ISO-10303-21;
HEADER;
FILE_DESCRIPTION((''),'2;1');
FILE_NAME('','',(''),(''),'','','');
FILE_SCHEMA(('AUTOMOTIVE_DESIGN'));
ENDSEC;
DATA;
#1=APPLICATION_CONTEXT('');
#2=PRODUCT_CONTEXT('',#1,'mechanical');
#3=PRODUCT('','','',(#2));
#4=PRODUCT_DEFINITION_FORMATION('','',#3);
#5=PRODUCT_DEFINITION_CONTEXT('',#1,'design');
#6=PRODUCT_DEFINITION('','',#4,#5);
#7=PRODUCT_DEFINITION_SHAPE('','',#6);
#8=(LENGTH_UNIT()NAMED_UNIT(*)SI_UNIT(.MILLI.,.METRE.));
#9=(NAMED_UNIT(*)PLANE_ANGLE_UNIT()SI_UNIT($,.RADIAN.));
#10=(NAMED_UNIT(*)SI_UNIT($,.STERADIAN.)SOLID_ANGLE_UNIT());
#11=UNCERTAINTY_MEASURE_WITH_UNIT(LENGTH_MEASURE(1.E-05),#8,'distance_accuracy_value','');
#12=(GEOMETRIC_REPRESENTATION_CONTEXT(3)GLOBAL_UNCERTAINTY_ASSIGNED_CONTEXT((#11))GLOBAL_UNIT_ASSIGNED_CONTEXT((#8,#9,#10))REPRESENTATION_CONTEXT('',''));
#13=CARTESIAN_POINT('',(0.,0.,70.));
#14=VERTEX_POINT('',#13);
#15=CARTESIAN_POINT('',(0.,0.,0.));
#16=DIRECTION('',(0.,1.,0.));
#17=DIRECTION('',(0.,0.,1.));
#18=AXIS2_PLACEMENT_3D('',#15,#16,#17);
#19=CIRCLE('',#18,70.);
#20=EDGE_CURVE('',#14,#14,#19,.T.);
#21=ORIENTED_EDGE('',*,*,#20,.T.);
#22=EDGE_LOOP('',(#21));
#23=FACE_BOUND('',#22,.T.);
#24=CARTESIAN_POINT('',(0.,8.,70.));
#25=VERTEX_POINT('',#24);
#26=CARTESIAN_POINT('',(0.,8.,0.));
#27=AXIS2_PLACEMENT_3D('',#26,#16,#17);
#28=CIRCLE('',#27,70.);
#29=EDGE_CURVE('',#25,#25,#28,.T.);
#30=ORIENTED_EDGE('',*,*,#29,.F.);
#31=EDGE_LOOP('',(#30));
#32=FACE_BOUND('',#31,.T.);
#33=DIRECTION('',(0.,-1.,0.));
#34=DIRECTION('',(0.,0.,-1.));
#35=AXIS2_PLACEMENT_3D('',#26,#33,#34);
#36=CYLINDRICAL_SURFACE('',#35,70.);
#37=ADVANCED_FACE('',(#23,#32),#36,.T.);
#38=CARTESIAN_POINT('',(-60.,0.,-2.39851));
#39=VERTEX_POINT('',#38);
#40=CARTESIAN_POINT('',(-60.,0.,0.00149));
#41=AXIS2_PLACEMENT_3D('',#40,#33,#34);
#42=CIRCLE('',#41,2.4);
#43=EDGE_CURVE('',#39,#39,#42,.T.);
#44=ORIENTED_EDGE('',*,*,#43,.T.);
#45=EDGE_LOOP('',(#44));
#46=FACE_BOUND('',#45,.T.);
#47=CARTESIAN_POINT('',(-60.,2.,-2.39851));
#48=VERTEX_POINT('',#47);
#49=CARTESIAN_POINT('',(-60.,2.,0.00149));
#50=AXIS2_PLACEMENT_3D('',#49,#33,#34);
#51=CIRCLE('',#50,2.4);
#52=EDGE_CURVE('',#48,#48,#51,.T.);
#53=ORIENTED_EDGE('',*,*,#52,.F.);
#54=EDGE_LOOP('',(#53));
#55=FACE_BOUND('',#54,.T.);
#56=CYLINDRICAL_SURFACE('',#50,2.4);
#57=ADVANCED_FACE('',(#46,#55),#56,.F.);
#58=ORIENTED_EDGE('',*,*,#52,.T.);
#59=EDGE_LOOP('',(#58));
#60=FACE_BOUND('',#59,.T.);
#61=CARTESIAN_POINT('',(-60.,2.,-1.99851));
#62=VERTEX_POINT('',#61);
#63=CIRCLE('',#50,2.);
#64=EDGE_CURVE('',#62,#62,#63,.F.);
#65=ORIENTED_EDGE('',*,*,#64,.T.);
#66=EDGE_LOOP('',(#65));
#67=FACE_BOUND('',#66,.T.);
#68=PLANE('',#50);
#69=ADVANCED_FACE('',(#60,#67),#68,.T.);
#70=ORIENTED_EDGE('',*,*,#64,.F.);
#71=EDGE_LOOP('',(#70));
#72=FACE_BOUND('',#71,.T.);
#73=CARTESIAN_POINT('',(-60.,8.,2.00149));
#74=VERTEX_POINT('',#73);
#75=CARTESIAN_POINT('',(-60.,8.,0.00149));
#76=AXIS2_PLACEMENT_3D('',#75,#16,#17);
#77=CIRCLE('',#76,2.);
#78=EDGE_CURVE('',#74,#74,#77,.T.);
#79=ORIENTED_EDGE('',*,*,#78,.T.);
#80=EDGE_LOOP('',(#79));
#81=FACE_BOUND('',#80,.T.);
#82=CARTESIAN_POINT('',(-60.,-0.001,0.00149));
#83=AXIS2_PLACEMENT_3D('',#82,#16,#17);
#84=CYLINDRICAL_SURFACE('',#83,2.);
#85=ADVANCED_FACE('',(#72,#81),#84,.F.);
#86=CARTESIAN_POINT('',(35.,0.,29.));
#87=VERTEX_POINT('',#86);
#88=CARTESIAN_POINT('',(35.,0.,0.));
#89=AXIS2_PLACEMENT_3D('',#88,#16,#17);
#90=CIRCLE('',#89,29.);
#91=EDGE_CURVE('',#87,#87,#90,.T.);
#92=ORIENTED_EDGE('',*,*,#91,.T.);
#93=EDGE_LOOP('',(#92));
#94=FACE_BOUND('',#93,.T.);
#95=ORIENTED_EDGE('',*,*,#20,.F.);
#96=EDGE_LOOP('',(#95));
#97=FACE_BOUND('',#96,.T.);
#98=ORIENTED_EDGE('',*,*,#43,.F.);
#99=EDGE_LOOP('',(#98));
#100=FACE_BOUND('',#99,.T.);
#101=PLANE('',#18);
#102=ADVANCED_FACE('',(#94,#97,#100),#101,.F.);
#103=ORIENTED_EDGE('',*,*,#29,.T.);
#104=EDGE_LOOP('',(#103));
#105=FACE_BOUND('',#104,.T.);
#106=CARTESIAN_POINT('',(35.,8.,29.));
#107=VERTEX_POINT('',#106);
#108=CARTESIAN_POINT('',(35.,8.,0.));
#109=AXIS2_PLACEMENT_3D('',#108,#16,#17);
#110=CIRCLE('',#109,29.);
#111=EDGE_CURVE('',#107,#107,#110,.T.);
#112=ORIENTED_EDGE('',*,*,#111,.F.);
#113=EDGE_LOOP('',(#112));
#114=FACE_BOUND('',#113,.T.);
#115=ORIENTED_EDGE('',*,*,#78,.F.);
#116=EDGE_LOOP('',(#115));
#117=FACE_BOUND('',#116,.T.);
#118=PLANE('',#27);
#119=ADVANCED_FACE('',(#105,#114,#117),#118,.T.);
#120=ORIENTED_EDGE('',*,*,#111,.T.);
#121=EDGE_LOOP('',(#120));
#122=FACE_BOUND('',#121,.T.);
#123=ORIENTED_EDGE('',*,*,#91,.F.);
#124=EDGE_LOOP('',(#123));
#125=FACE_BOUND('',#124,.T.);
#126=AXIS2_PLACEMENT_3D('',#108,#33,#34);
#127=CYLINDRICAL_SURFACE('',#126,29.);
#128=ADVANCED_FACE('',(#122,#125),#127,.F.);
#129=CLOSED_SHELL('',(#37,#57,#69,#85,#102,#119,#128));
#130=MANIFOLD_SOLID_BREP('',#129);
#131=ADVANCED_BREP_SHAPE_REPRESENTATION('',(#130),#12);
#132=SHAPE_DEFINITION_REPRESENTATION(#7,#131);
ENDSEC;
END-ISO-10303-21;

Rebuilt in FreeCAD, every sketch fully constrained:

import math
import FreeCAD as App
import Part
import Sketcher
from FreeCAD import Vector

doc = App.newDocument("Part")
body = doc.addObject("PartDesign::Body", "Body")

# Sketch on XZ plane
sketch1 = body.newObject("Sketcher::SketchObject", "Sketch")
sketch1.AttachmentSupport = (doc.getObject("XZ_Plane"), [""])
sketch1.MapMode = "FlatFace"
sketch1.addGeometry(Part.Circle(Vector(0, 0, 0), Vector(0, 0, 1), 70), False)
sketch1.addGeometry(Part.ArcOfCircle(Part.Circle(Vector(35, 0, 0), Vector(0, 0, 1), 29), math.radians(0), math.radians(90)), False)
sketch1.addGeometry(Part.ArcOfCircle(Part.Circle(Vector(35, 0, 0), Vector(0, 0, 1), 29), math.radians(90), math.radians(270)), False)
sketch1.addGeometry(Part.ArcOfCircle(Part.Circle(Vector(35, 0, 0), Vector(0, 0, 1), 29), math.radians(-90), math.radians(0)), False)
sketch1.addConstraint(Sketcher.Constraint("Tangent", 1, 2, 2, 1))
sketch1.addConstraint(Sketcher.Constraint("Tangent", 2, 2, 3, 1))
sketch1.addConstraint(Sketcher.Constraint("Tangent", 3, 2, 1, 1))
sketch1.addConstraint(Sketcher.Constraint("Coincident", 0, 3, -1, 1))
sketch1.addConstraint(Sketcher.Constraint("Symmetric", 1, 2, 2, 2, -1))
sketch1.addConstraint(Sketcher.Constraint("PointOnObject", 3, 2, -1))
sketch1.addConstraint(Sketcher.Constraint("Vertical", 3, 3, 1, 2))
sketch1.addConstraint(Sketcher.Constraint("Diameter", 0, 140.0))
sketch1.addConstraint(Sketcher.Constraint("Radius", 1, 29.0))
sketch1.addConstraint(Sketcher.Constraint("DistanceX", -1, 1, 1, 3, 35.0))
pad1 = body.newObject("PartDesign::Pad", "Pad")
pad1.Profile = sketch1
pad1.Length = 8
pad1.Reversed = True

# Sketch on XZ plane
sketch2 = body.newObject("Sketcher::SketchObject", "Sketch001")
sketch2.AttachmentSupport = (doc.getObject("XZ_Plane"), [""])
sketch2.MapMode = "FlatFace"
sketch2.AttachmentOffset = App.Placement(Vector(0, 0, -8), App.Rotation())
sketch2.addGeometry(Part.Circle(Vector(-60, 0, 0), Vector(0, 0, 1), 2), False)
sketch2.addConstraint(Sketcher.Constraint("Diameter", 0, 4.0))
sketch2.addConstraint(Sketcher.Constraint("DistanceX", 0, 3, -1, 1, 60.0))
sketch2.addConstraint(Sketcher.Constraint("DistanceY", -1, 1, 0, 3, 0.00149))
pocket1 = body.newObject("PartDesign::Pocket", "Pocket")
pocket1.Profile = sketch2
pocket1.Type = "UpToFirst"
pocket1.Reversed = True

# Sketch on XZ plane
sketch3 = body.newObject("Sketcher::SketchObject", "Sketch002")
sketch3.AttachmentSupport = (doc.getObject("XZ_Plane"), [""])
sketch3.MapMode = "FlatFace"
sketch3.addGeometry(Part.Circle(Vector(-60, 0, 0), Vector(0, 0, 1), 2.4), False)
sketch3.addConstraint(Sketcher.Constraint("Diameter", 0, 4.8))
sketch3.addConstraint(Sketcher.Constraint("DistanceX", 0, 3, -1, 1, 60.0))
sketch3.addConstraint(Sketcher.Constraint("DistanceY", -1, 1, 0, 3, 0.00149))
pocket2 = body.newObject("PartDesign::Pocket", "Pocket001")
pocket2.Profile = sketch3
pocket2.Length = 2

doc.recompute()
